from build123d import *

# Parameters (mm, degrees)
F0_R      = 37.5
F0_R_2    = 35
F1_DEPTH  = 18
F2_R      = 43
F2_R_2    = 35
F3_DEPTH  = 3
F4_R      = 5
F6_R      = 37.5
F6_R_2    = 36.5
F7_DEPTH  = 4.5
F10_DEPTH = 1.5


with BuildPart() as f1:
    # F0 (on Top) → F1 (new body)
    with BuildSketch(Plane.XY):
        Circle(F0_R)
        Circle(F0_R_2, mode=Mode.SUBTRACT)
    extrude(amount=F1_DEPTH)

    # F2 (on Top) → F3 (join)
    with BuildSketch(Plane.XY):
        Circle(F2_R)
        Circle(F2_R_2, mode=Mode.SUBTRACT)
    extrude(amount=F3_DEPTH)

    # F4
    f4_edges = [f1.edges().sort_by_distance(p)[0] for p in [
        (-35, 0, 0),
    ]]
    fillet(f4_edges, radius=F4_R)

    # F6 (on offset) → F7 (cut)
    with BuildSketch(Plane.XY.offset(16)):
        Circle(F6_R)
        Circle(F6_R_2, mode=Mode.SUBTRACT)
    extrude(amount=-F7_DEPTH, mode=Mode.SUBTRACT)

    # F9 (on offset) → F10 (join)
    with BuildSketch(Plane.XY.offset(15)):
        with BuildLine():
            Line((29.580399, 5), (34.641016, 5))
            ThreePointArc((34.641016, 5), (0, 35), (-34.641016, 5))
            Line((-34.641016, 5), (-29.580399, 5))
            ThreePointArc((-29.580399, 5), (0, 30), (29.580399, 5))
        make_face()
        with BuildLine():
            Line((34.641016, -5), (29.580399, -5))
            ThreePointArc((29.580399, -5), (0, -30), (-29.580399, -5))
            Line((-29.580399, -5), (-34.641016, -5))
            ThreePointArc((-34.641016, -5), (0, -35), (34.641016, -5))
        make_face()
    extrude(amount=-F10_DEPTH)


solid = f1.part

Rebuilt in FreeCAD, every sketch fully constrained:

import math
import FreeCAD as App
import Part
import Sketcher
from FreeCAD import Vector
Q = App.Units.Quantity


def edges_at(feature, points):
    """Names of the edges that pass closest to the given points."""
    edges = feature.Shape.Edges
    near = lambda p: min(range(len(edges)), key=lambda i: edges[i].distToShape(Part.Vertex(*p))[0])
    return sorted({f"Edge{near(p) + 1}" for p in points})

doc = App.newDocument("Part")
body = doc.addObject("PartDesign::Body", "Body")

# Sketch on XY plane
sketch1 = doc.addObject("Sketcher::SketchObject", "Sketch")
body.addObject(sketch1)
sketch1.AttachmentSupport = (doc.XY_Plane, [""])
sketch1.MapMode = "FlatFace"
sketch1.addGeometry(Part.Circle(Vector(0, 0, 0), Vector(0, 0, 1), 38), False)
sketch1.addGeometry(Part.Circle(Vector(0, 0, 0), Vector(0, 0, 1), 35), False)
sketch1.addConstraint(Sketcher.Constraint("Coincident", 0, 3, -1, 1))
sketch1.addConstraint(Sketcher.Constraint("Coincident", 1, 3, -1, 1))
sketch1.addConstraint(Sketcher.Constraint("Diameter", 0, Q("75 mm")))
sketch1.addConstraint(Sketcher.Constraint("Diameter", 1, Q("70 mm")))
pad1 = doc.addObject("PartDesign::Pad", "Pad")
body.addObject(pad1)
pad1.Profile = sketch1
pad1.Length = 18

# Sketch on XY plane
sketch2 = doc.addObject("Sketcher::SketchObject", "Sketch001")
body.addObject(sketch2)
sketch2.AttachmentSupport = (doc.XY_Plane, [""])
sketch2.MapMode = "FlatFace"
sketch2.addGeometry(Part.Circle(Vector(0, 0, 0), Vector(0, 0, 1), 43), False)
sketch2.addGeometry(Part.Circle(Vector(0, 0, 0), Vector(0, 0, 1), 35), False)
sketch2.addConstraint(Sketcher.Constraint("Coincident", 0, 3, -1, 1))
sketch2.addConstraint(Sketcher.Constraint("Coincident", 1, 3, -1, 1))
sketch2.addConstraint(Sketcher.Constraint("Diameter", 0, Q("86 mm")))
sketch2.addConstraint(Sketcher.Constraint("Diameter", 1, Q("70 mm")))
pad2 = doc.addObject("PartDesign::Pad", "Pad001")
body.addObject(pad2)
pad2.Profile = sketch2
pad2.Length = 3
doc.recompute()

fillet = doc.addObject("PartDesign::Fillet", "Fillet")
body.addObject(fillet)
fillet.Base = (pad2, edges_at(pad2, [(-35, 0, 0)]))
fillet.Radius = 5

# Sketch on XY plane
sketch3 = doc.addObject("Sketcher::SketchObject", "Sketch002")
body.addObject(sketch3)
sketch3.AttachmentSupport = (doc.XY_Plane, [""])
sketch3.MapMode = "FlatFace"
sketch3.AttachmentOffset = App.Placement(Vector(0, 0, 16), App.Rotation())
sketch3.addGeometry(Part.Circle(Vector(0, 0, 0), Vector(0, 0, 1), 38), False)
sketch3.addGeometry(Part.Circle(Vector(0, 0, 0), Vector(0, 0, 1), 36), False)
sketch3.addConstraint(Sketcher.Constraint("Coincident", 0, 3, -1, 1))
sketch3.addConstraint(Sketcher.Constraint("Coincident", 1, 3, -1, 1))
sketch3.addConstraint(Sketcher.Constraint("Diameter", 0, Q("75 mm")))
sketch3.addConstraint(Sketcher.Constraint("Diameter", 1, Q("73 mm")))
pocket1 = doc.addObject("PartDesign::Pocket", "Pocket")
body.addObject(pocket1)
pocket1.Profile = sketch3
pocket1.Length = 4.5

# Sketch on XY plane
sketch4 = doc.addObject("Sketcher::SketchObject", "Sketch003")
body.addObject(sketch4)
sketch4.AttachmentSupport = (doc.XY_Plane, [""])
sketch4.MapMode = "FlatFace"
sketch4.AttachmentOffset = App.Placement(Vector(0, 0, 15), App.Rotation())
sketch4.addGeometry(Part.LineSegment(Vector(30, 5, 0), Vector(35, 5, 0)), False)
sketch4.addGeometry(Part.ArcOfCircle(Part.Circle(Vector(0, 0, 0), Vector(0, 0, 1), 35), math.radians(8), math.radians(172)), False)
sketch4.addGeometry(Part.LineSegment(Vector(-35, 5, 0), Vector(-30, 5, 0)), False)
sketch4.addGeometry(Part.ArcOfCircle(Part.Circle(Vector(0, 0, 0), Vector(0, 0, 1), 30), math.radians(10), math.radians(170)), False)
sketch4.addGeometry(Part.LineSegment(Vector(35, -5, 0), Vector(30, -5, 0)), False)
sketch4.addGeometry(Part.ArcOfCircle(Part.Circle(Vector(0, 0, 0), Vector(0, 0, 1), 30), math.radians(-170), math.radians(-10)), False)
sketch4.addGeometry(Part.LineSegment(Vector(-30, -5, 0), Vector(-35, -5, 0)), False)
sketch4.addGeometry(Part.ArcOfCircle(Part.Circle(Vector(0, 0, 0), Vector(0, 0, 1), 35), math.radians(-172), math.radians(-8)), False)
sketch4.addConstraint(Sketcher.Constraint("Coincident", 0, 2, 1, 1))
sketch4.addConstraint(Sketcher.Constraint("Coincident", 1, 2, 2, 1))
sketch4.addConstraint(Sketcher.Constraint("Coincident", 2, 2, 3, 2))
sketch4.addConstraint(Sketcher.Constraint("Coincident", 3, 1, 0, 1))
sketch4.addConstraint(Sketcher.Constraint("Coincident", 4, 2, 5, 2))
sketch4.addConstraint(Sketcher.Constraint("Coincident", 5, 1, 6, 1))
sketch4.addConstraint(Sketcher.Constraint("Coincident", 6, 2, 7, 1))
sketch4.addConstraint(Sketcher.Constraint("Coincident", 7, 2, 4, 1))
sketch4.addConstraint(Sketcher.Constraint("Horizontal", 0))
sketch4.addConstraint(Sketcher.Constraint("Horizontal", 2))
sketch4.addConstraint(Sketcher.Constraint("Horizontal", 4))
sketch4.addConstraint(Sketcher.Constraint("Horizontal", 6))
sketch4.addConstraint(Sketcher.Constraint("Coincident", 1, 3, -1, 1))
sketch4.addConstraint(Sketcher.Constraint("Coincident", 3, 3, -1, 1))
sketch4.addConstraint(Sketcher.Constraint("Coincident", 5, 3, -1, 1))
sketch4.addConstraint(Sketcher.Constraint("Coincident", 7, 3, -1, 1))
sketch4.addConstraint(Sketcher.Constraint("Equal", 3, 5))
sketch4.addConstraint(Sketcher.Constraint("Equal", 1, 7))
sketch4.addConstraint(Sketcher.Constraint("Horizontal", 0, 2, 1, 2))
sketch4.addConstraint(Sketcher.Constraint("Horizontal", 4, 2, 5, 1))
sketch4.addConstraint(Sketcher.Constraint("Vertical", 3, 1, 4, 2))
sketch4.addConstraint(Sketcher.Constraint("Radius", 1, Q("35 mm")))
sketch4.addConstraint(Sketcher.Constraint("Radius", 3, Q("30 mm")))
sketch4.addConstraint(Sketcher.Constraint("DistanceY", -1, 1, 0, 2, Q("5 mm")))
pad3 = doc.addObject("PartDesign::Pad", "Pad002")
body.addObject(pad3)
pad3.Profile = sketch4
pad3.Length = 1.5
pad3.Reversed = True

doc.recompute()
